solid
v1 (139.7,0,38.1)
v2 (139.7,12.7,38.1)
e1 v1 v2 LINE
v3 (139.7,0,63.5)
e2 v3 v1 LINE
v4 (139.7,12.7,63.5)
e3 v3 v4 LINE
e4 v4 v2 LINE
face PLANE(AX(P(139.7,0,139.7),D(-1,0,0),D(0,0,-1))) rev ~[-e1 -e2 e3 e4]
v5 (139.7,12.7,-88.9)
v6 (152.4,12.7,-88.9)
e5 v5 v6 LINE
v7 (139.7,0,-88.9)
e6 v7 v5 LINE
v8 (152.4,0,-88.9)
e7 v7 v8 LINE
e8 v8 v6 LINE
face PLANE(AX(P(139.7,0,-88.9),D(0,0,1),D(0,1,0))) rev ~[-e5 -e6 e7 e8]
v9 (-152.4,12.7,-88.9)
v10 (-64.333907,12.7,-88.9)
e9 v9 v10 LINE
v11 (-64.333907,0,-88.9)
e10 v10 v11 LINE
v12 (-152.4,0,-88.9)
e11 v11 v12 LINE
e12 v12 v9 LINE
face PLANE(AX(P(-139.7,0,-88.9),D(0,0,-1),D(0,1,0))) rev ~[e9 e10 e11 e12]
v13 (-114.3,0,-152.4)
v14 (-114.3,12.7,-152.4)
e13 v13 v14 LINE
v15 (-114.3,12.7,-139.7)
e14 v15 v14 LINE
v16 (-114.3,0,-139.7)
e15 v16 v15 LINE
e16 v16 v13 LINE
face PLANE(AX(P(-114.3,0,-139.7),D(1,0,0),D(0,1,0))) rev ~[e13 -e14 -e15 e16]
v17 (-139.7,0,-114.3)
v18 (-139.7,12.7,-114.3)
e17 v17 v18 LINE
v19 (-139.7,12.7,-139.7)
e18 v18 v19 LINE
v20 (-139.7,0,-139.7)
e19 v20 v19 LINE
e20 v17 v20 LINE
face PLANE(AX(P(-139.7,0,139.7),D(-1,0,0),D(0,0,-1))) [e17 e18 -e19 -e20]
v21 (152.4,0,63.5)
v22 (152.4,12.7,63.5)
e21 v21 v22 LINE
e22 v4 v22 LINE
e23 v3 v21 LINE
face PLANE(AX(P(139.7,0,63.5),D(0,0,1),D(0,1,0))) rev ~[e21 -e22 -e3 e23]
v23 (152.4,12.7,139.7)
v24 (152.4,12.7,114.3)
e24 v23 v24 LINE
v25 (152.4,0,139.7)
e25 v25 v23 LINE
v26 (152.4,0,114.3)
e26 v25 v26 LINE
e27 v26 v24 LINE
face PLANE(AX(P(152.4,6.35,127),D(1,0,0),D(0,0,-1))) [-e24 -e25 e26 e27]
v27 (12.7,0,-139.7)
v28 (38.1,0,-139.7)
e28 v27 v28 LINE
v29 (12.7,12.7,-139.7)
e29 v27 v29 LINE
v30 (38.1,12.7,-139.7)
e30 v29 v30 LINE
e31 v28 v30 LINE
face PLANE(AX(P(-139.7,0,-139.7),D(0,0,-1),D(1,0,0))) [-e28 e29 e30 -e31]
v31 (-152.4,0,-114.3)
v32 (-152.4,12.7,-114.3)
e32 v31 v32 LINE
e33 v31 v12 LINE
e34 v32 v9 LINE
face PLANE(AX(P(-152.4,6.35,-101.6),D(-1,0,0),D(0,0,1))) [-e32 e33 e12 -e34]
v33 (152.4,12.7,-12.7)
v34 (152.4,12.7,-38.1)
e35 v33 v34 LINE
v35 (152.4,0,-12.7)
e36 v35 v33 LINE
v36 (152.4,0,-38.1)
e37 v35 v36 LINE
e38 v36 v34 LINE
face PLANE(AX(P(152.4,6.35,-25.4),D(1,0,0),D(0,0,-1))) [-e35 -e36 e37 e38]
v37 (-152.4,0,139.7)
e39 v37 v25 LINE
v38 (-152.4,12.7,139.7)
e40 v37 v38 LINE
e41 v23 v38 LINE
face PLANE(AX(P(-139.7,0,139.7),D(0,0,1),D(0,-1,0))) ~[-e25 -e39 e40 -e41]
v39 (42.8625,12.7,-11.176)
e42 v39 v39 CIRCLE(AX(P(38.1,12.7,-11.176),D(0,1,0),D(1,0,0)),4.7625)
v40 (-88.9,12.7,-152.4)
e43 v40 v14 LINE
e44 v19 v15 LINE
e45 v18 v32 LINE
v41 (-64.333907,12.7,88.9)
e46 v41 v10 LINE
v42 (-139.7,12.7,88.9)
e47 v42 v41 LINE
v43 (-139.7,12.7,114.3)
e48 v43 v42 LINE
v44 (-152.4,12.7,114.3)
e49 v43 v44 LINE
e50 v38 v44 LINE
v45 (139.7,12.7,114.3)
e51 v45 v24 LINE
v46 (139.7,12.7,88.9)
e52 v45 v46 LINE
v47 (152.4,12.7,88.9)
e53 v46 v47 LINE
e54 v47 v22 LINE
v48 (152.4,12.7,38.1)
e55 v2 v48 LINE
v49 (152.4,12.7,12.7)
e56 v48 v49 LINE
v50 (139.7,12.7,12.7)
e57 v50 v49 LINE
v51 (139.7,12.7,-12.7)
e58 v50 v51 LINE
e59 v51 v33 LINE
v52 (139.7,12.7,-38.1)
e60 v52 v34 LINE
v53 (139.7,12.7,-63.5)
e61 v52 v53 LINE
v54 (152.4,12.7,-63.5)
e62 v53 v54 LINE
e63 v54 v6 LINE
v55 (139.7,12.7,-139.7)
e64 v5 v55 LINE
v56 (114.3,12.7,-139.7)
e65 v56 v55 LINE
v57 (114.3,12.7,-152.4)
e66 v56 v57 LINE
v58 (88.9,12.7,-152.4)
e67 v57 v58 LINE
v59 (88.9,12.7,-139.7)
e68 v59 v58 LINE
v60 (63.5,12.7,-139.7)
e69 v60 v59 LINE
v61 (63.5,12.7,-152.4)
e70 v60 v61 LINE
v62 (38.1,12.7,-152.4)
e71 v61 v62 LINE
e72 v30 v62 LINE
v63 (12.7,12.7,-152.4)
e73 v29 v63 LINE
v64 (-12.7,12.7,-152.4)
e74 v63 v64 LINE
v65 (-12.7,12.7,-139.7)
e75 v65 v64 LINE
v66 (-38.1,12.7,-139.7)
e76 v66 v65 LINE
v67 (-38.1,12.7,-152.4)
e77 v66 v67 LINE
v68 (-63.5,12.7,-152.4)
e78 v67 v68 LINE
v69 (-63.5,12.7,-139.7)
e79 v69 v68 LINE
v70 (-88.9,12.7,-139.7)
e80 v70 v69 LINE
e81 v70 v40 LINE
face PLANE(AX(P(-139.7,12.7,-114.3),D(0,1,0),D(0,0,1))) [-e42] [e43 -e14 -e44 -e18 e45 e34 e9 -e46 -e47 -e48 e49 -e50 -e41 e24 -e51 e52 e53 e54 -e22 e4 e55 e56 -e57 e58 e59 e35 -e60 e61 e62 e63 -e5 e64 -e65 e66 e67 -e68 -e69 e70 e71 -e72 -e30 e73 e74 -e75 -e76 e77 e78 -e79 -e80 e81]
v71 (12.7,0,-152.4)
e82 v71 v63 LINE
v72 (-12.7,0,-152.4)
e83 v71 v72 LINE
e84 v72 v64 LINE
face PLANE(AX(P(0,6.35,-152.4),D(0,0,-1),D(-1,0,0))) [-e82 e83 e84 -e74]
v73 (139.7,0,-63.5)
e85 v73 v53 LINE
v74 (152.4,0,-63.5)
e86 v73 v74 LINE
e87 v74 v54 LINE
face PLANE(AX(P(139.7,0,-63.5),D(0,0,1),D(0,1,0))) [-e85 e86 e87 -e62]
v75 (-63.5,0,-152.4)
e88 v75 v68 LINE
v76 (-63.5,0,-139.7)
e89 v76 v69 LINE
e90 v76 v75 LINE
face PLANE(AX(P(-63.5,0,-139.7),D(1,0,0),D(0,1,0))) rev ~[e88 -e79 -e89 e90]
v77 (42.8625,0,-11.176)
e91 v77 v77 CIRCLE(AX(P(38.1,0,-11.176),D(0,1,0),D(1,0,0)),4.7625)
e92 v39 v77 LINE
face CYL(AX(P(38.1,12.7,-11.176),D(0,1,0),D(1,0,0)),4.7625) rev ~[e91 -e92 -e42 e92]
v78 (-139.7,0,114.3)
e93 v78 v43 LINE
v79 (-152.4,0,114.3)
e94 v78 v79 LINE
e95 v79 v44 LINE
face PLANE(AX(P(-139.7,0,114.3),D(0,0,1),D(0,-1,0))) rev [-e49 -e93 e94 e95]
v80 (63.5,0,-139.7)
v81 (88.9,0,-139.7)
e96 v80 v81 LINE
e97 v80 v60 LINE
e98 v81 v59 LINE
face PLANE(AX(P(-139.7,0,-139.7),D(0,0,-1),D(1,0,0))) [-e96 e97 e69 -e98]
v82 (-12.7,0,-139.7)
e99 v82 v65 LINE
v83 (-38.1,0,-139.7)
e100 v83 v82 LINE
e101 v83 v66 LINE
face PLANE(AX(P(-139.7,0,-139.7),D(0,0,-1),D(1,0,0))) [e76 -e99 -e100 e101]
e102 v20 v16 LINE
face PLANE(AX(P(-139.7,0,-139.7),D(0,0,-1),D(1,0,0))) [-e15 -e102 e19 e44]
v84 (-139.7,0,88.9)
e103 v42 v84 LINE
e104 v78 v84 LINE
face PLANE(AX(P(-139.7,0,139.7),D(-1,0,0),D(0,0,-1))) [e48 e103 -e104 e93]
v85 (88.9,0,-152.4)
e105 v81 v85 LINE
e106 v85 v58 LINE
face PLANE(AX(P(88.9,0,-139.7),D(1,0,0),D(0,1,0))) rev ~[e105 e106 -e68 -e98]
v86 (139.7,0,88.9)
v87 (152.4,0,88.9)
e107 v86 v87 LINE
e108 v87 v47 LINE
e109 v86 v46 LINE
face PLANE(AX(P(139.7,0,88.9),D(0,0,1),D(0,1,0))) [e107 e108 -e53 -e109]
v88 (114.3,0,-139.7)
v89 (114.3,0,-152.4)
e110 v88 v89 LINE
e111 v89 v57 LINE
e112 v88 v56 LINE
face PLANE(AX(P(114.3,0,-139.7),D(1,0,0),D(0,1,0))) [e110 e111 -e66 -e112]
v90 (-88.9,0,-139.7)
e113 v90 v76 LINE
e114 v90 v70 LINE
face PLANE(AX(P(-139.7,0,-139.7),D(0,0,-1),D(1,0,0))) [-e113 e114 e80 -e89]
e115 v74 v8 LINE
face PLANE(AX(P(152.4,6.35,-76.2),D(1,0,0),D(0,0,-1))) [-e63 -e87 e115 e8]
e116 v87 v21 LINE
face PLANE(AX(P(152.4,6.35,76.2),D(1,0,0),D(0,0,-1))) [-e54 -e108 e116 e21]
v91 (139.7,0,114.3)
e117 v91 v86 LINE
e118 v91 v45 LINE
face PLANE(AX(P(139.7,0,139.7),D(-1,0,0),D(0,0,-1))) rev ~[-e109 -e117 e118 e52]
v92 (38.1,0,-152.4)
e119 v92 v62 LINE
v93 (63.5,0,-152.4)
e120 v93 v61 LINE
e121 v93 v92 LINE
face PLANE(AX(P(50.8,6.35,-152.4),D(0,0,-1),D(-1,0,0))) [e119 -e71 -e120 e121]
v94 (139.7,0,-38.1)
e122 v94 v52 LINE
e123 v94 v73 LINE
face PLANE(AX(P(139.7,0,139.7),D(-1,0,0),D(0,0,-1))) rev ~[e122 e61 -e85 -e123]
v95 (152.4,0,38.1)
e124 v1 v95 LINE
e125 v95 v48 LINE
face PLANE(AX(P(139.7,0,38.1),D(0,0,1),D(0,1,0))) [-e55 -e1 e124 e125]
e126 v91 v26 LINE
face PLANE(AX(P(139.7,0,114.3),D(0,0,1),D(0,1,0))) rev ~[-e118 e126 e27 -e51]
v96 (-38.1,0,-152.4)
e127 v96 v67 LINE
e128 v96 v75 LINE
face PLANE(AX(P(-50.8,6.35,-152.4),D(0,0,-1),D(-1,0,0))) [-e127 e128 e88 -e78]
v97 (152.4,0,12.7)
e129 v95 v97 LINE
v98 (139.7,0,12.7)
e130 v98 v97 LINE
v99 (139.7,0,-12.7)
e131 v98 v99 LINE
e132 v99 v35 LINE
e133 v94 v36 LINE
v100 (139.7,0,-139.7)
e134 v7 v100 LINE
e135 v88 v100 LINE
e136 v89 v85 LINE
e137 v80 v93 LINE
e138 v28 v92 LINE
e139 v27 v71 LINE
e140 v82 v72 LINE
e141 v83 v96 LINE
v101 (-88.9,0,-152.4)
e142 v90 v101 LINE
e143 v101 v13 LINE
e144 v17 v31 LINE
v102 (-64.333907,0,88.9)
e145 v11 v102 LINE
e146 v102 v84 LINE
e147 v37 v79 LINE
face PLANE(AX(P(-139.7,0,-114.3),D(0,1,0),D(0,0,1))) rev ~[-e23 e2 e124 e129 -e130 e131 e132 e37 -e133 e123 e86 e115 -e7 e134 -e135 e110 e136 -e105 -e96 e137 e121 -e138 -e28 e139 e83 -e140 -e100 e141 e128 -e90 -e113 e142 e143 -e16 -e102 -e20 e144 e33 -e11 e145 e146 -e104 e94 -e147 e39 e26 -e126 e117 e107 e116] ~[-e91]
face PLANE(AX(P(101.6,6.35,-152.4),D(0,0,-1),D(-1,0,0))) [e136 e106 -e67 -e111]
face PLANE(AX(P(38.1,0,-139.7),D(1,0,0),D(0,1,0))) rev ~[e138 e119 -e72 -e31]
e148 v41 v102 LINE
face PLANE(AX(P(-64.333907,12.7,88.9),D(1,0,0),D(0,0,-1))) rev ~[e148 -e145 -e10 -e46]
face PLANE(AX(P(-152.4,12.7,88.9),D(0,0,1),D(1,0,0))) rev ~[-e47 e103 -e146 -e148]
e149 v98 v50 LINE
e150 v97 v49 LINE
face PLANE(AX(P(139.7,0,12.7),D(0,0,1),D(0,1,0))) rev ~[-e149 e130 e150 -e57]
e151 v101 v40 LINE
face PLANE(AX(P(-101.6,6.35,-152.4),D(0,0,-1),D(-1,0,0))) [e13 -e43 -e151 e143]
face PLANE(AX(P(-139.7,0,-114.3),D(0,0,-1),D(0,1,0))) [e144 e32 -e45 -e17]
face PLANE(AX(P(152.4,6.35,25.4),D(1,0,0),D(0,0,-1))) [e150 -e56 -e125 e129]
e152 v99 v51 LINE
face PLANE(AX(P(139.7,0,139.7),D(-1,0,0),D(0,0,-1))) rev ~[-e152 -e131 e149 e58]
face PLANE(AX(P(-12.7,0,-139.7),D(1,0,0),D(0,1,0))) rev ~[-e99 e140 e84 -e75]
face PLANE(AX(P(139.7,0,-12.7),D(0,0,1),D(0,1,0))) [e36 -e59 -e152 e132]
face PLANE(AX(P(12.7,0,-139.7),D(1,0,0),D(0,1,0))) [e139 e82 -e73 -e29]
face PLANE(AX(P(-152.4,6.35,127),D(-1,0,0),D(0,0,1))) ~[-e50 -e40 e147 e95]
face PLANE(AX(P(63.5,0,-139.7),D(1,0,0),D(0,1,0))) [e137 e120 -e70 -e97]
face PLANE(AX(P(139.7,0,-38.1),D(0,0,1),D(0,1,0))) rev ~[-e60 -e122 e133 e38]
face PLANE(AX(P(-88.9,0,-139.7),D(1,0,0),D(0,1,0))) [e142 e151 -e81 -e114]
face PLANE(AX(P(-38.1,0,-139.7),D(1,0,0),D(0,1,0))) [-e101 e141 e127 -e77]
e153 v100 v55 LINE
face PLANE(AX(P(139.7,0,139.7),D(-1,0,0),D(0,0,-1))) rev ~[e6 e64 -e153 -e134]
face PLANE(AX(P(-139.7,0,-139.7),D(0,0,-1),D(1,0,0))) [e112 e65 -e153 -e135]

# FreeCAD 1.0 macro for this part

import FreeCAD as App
import Part
import Sketcher

V = App.Vector
Q = App.Units.Quantity


def add_polygon(sketch, points):
    """Adds a closed chain of lines whose ends are joined by coincident constraints."""
    first, n = sketch.GeometryCount, len(points)
    for a, b in zip(points, points[1:] + points[:1]):
        sketch.addGeometry(Part.LineSegment(App.Vector(*a, 0), App.Vector(*b, 0)), False)
    for i in range(n):
        sketch.addConstraint(Sketcher.Constraint("Coincident", first + i, 2, first + (i + 1) % n, 1))

doc = App.newDocument("Part")
body = doc.addObject("PartDesign::Body", "Body")

sketch1 = body.newObject("Sketcher::SketchObject", "Sketch")
sketch1.AttachmentSupport = (doc.getObject("XZ_Plane"), [""])
sketch1.MapMode = "FlatFace"
add_polygon(sketch1, [(-140, -140), (-140, 140), (140, 140), (140, -140)])
sketch1.addConstraint(Sketcher.Constraint("Vertical", 0))
sketch1.addConstraint(Sketcher.Constraint("Horizontal", 1))
sketch1.addConstraint(Sketcher.Constraint("Vertical", 2))
sketch1.addConstraint(Sketcher.Constraint("Horizontal", 3))
sketch1.addConstraint(Sketcher.Constraint("Symmetric", 0, 2, 2, 2, -1, 1))
sketch1.addConstraint(Sketcher.Constraint("Equal", 3, 0))
sketch1.addConstraint(Sketcher.Constraint("DistanceX", 1, 1, 1, 2, Q("11 in")))
pad1 = body.newObject("PartDesign::Pad", "Pad")
pad1.Profile = sketch1
pad1.Length = Q("0.5 in")
pad1.Reversed = True

sketch2 = body.newObject("Sketcher::SketchObject", "Sketch001")
sketch2.AttachmentSupport = (doc.getObject("YZ_Plane"), [""])
sketch2.MapMode = "FlatFace"
sketch2.AttachmentOffset = App.Placement(V(0, 0, 5.5 * 25.4), App.Rotation())
add_polygon(sketch2, [(13, 140), (0, 140), (0, 114), (13, 114)])
sketch2.addConstraint(Sketcher.Constraint("Horizontal", 0))
sketch2.addConstraint(Sketcher.Constraint("Vertical", 1))
sketch2.addConstraint(Sketcher.Constraint("Horizontal", 2))
sketch2.addConstraint(Sketcher.Constraint("Vertical", 3))
sketch2.addConstraint(Sketcher.Constraint("PointOnObject", 0, 2, -2))
sketch2.addConstraint(Sketcher.Constraint("DistanceY", 1, 2, 1, 1, Q("1 in")))
sketch2.addConstraint(Sketcher.Constraint("DistanceX", 0, 2, 0, 1, Q("0.5 in")))
sketch2.addConstraint(Sketcher.Constraint("DistanceY", -1, 1, 0, 2, Q("5.5 in")))
pad2 = body.newObject("PartDesign::Pad", "Pad001")
pad2.Profile = sketch2
pad2.Length = Q("0.5 in")
doc.recompute()

linearpattern = body.newObject("PartDesign::LinearPattern", "LinearPattern")
linearpattern.Originals = [pad2]
linearpattern.Direction = (doc.getObject("Z_Axis"), [""])
linearpattern.Mode = "offset"
linearpattern.Offset = Q("2 in")
linearpattern.Occurrences = 5
linearpattern.Reversed = True
body.Tip = linearpattern
doc.recompute()

mirrored = body.newObject("PartDesign::Mirrored", "Mirrored")
mirrored.Originals = [pad2]
mirrored.MirrorPlane = (doc.getObject("YZ_Plane"), [""])
body.Tip = mirrored

sketch3 = body.newObject("Sketcher::SketchObject", "Sketch002")
sketch3.AttachmentSupport = (doc.getObject("YZ_Plane"), [""])
sketch3.MapMode = "FlatFace"
sketch3.AttachmentOffset = App.Placement(V(0, 0, -5.5 * 25.4), App.Rotation())
add_polygon(sketch3, [(0, 89), (13, 89), (13, 64), (0, 64)])
sketch3.addConstraint(Sketcher.Constraint("Horizontal", 0))
sketch3.addConstraint(Sketcher.Constraint("Vertical", 1))
sketch3.addConstraint(Sketcher.Constraint("Horizontal", 2))
sketch3.addConstraint(Sketcher.Constraint("Vertical", 3))
sketch3.addConstraint(Sketcher.Constraint("PointOnObject", 2, 2, -2))
sketch3.addConstraint(Sketcher.Constraint("DistanceY", 1, 2, 1, 1, Q("1 in")))
sketch3.addConstraint(Sketcher.Constraint("DistanceX", 0, 1, 0, 2, Q("0.5 in")))
sketch3.addConstraint(Sketcher.Constraint("DistanceY", -1, 1, 0, 2, Q("3.5 in")))
pad3 = body.newObject("PartDesign::Pad", "Pad002")
pad3.Profile = sketch3
pad3.Length = Q("0.5 in")
pad3.Reversed = True

sketch4 = body.newObject("Sketcher::SketchObject", "Sketch003")
sketch4.AttachmentSupport = (doc.getObject("YZ_Plane"), [""])
sketch4.MapMode = "FlatFace"
sketch4.AttachmentOffset = App.Placement(V(0, 0, -5.5 * 25.4), App.Rotation())
add_polygon(sketch4, [(0, 38), (13, 38), (13, 13), (0, 13)])
sketch4.addConstraint(Sketcher.Constraint("Horizontal", 0))
sketch4.addConstraint(Sketcher.Constraint("Vertical", 1))
sketch4.addConstraint(Sketcher.Constraint("Horizontal", 2))
sketch4.addConstraint(Sketcher.Constraint("Vertical", 3))
sketch4.addConstraint(Sketcher.Constraint("PointOnObject", 2, 2, -2))
sketch4.addConstraint(Sketcher.Constraint("DistanceY", 1, 2, 1, 1, Q("1 in")))
sketch4.addConstraint(Sketcher.Constraint("DistanceX", 0, 1, 0, 2, Q("0.5 in")))
sketch4.addConstraint(Sketcher.Constraint("DistanceY", -1, 1, 0, 2, Q("1.5 in")))
pad4 = body.newObject("PartDesign::Pad", "Pad003")
pad4.Profile = sketch4
pad4.Length = Q("0.5 in")
pad4.Reversed = True

sketch5 = body.newObject("Sketcher::SketchObject", "Sketch004")
sketch5.AttachmentSupport = (doc.getObject("YZ_Plane"), [""])
sketch5.MapMode = "FlatFace"
sketch5.AttachmentOffset = App.Placement(V(0, 0, -5.5 * 25.4), App.Rotation())
add_polygon(sketch5, [(0, -13), (13, -13), (13, -38), (0, -38)])
sketch5.addConstraint(Sketcher.Constraint("Horizontal", 0))
sketch5.addConstraint(Sketcher.Constraint("Vertical", 1))
sketch5.addConstraint(Sketcher.Constraint("Horizontal", 2))
sketch5.addConstraint(Sketcher.Constraint("Vertical", 3))
sketch5.addConstraint(Sketcher.Constraint("PointOnObject", 2, 2, -2))
sketch5.addConstraint(Sketcher.Constraint("DistanceY", 1, 2, 1, 1, Q("1 in")))
sketch5.addConstraint(Sketcher.Constraint("DistanceX", 0, 1, 0, 2, Q("0.5 in")))
sketch5.addConstraint(Sketcher.Constraint("DistanceY", 0, 2, -1, 1, Q("0.5 in")))
pad5 = body.newObject("PartDesign::Pad", "Pad004")
pad5.Profile = sketch5
pad5.Length = Q("0.5 in")
pad5.Reversed = True

sketch6 = body.newObject("Sketcher::SketchObject", "Sketch005")
sketch6.AttachmentSupport = (doc.getObject("YZ_Plane"), [""])
sketch6.MapMode = "FlatFace"
sketch6.AttachmentOffset = App.Placement(V(0, 0, -5.5 * 25.4), App.Rotation())
add_polygon(sketch6, [(0, -64), (13, -64), (13, -89), (0, -89)])
sketch6.addConstraint(Sketcher.Constraint("Horizontal", 0))
sketch6.addConstraint(Sketcher.Constraint("Vertical", 1))
sketch6.addConstraint(Sketcher.Constraint("Horizontal", 2))
sketch6.addConstraint(Sketcher.Constraint("Vertical", 3))
sketch6.addConstraint(Sketcher.Constraint("PointOnObject", 2, 2, -2))
sketch6.addConstraint(Sketcher.Constraint("DistanceY", 1, 2, 1, 1, Q("1 in")))
sketch6.addConstraint(Sketcher.Constraint("DistanceX", 0, 1, 0, 2, Q("0.5 in")))
sketch6.addConstraint(Sketcher.Constraint("DistanceY", 0, 2, -1, 1, Q("2.5 in")))
pad6 = body.newObject("PartDesign::Pad", "Pad005")
pad6.Profile = sketch6
pad6.Length = Q("0.5 in")
pad6.Reversed = True

sketch7 = body.newObject("Sketcher::SketchObject", "Sketch006")
sketch7.AttachmentSupport = (doc.getObject("XY_Plane"), [""])
sketch7.MapMode = "FlatFace"
sketch7.AttachmentOffset = App.Placement(V(0, 0, -5.5 * 25.4), App.Rotation())
add_polygon(sketch7, [(114, 13), (114, 0), (89, 0), (89, 13)])
sketch7.addConstraint(Sketcher.Constraint("Vertical", 0))
sketch7.addConstraint(Sketcher.Constraint("Horizontal", 1))
sketch7.addConstraint(Sketcher.Constraint("Vertical", 2))
sketch7.addConstraint(Sketcher.Constraint("Horizontal", 3))
sketch7.addConstraint(Sketcher.Constraint("PointOnObject", 0, 2, -1))
sketch7.addConstraint(Sketcher.Constraint("DistanceX", 1, 2, 1, 1, Q("1 in")))
sketch7.addConstraint(Sketcher.Constraint("DistanceY", 0, 2, 0, 1, Q("0.5 in")))
sketch7.addConstraint(Sketcher.Constraint("DistanceX", -1, 1, 0, 2, Q("4.5 in")))
pad7 = body.newObject("PartDesign::Pad", "Pad006")
pad7.Profile = sketch7
pad7.Length = Q("0.5 in")
pad7.Reversed = True
doc.recompute()

linearpattern2 = body.newObject("PartDesign::LinearPattern", "LinearPattern001")
linearpattern2.Originals = [pad7]
linearpattern2.Direction = (doc.getObject("X_Axis"), [""])
linearpattern2.Mode = "offset"
linearpattern2.Offset = Q("2 in")
linearpattern2.Occurrences = 5
linearpattern2.Reversed = True
body.Tip = linearpattern2

sketch8 = body.newObject("Sketcher::SketchObject", "Sketch007")
sketch8.AttachmentSupport = (doc.getObject("XZ_Plane"), [""])
sketch8.MapMode = "FlatFace"
sketch8.AttachmentOffset = App.Placement(V(0, 0, -0.5 * 25.4), App.Rotation())
sketch8.addGeometry(Part.Circle(V(38.1, -11.2, 0), V(0, 0, 1), 4.8), False)
sketch8.addConstraint(Sketcher.Constraint("Diameter", 0, Q("0.375 in")))
sketch8.addConstraint(Sketcher.Constraint("DistanceX", -1, 1, 0, 3, Q("1.5 in")))
sketch8.addConstraint(Sketcher.Constraint("DistanceY", 0, 3, -1, 1, Q("0.44 in")))
pocket1 = body.newObject("PartDesign::Pocket", "Pocket")
pocket1.Profile = sketch8
pocket1.Type = "ThroughAll"
pocket1.Reversed = True

sketch9 = body.newObject("Sketcher::SketchObject", "Sketch008")
sketch9.AttachmentSupport = (doc.getObject("XZ_Plane"), [""])
sketch9.MapMode = "FlatFace"
sketch9.AttachmentOffset = App.Placement(V(0, 0, -0.5 * 25.4), App.Rotation())
add_polygon(sketch9, [(-152, -89), (-152, 89), (-64, 89), (-64, -89)])
sketch9.addConstraint(Sketcher.Constraint("Vertical", 0))
sketch9.addConstraint(Sketcher.Constraint("Horizontal", 1))
sketch9.addConstraint(Sketcher.Constraint("Vertical", 2))
sketch9.addConstraint(Sketcher.Constraint("Horizontal", 3))
sketch9.addConstraint(Sketcher.Constraint("DistanceY", 0, 1, 0, 2, Q("7 in")))
sketch9.addConstraint(Sketcher.Constraint("DistanceX", 0, 2, -1, 1, Q("6 in")))
sketch9.addConstraint(Sketcher.Constraint("DistanceY", -1, 1, 0, 2, Q("3.5 in")))
sketch9.addConstraint(Sketcher.Constraint("DistanceX", 1, 1, 1, 2, Q("88.066093 mm")))
pocket2 = body.newObject("PartDesign::Pocket", "Pocket001")
pocket2.Profile = sketch9
pocket2.Type = "ThroughAll"
pocket2.Reversed = True

sketch10 = body.newObject("Sketcher::SketchObject", "Sketch009")
sketch10.AttachmentSupport = (doc.getObject("YZ_Plane"), [""])
sketch10.MapMode = "FlatFace"
sketch10.AttachmentOffset = App.Placement(V(0, 0, -5.5 * 25.4), App.Rotation())
add_polygon(sketch10, [(13, -114), (0, -114), (0, -89), (13, -89)])
sketch10.addConstraint(Sketcher.Constraint("Horizontal", 0))
sketch10.addConstraint(Sketcher.Constraint("Vertical", 1))
sketch10.addConstraint(Sketcher.Constraint("Horizontal", 2))
sketch10.addConstraint(Sketcher.Constraint("Vertical", 3))
sketch10.addConstraint(Sketcher.Constraint("PointOnObject", 0, 2, -2))
sketch10.addConstraint(Sketcher.Constraint("DistanceY", 1, 1, 1, 2, Q("1 in")))
sketch10.addConstraint(Sketcher.Constraint("DistanceX", 0, 2, 0, 1, Q("0.5 in")))
sketch10.addConstraint(Sketcher.Constraint("DistanceY", 0, 2, -1, 1, Q("4.5 in")))
pad8 = body.newObject("PartDesign::Pad", "Pad007")
pad8.Profile = sketch10
pad8.Length = Q("0.5 in")
pad8.Reversed = True

doc.recompute()
